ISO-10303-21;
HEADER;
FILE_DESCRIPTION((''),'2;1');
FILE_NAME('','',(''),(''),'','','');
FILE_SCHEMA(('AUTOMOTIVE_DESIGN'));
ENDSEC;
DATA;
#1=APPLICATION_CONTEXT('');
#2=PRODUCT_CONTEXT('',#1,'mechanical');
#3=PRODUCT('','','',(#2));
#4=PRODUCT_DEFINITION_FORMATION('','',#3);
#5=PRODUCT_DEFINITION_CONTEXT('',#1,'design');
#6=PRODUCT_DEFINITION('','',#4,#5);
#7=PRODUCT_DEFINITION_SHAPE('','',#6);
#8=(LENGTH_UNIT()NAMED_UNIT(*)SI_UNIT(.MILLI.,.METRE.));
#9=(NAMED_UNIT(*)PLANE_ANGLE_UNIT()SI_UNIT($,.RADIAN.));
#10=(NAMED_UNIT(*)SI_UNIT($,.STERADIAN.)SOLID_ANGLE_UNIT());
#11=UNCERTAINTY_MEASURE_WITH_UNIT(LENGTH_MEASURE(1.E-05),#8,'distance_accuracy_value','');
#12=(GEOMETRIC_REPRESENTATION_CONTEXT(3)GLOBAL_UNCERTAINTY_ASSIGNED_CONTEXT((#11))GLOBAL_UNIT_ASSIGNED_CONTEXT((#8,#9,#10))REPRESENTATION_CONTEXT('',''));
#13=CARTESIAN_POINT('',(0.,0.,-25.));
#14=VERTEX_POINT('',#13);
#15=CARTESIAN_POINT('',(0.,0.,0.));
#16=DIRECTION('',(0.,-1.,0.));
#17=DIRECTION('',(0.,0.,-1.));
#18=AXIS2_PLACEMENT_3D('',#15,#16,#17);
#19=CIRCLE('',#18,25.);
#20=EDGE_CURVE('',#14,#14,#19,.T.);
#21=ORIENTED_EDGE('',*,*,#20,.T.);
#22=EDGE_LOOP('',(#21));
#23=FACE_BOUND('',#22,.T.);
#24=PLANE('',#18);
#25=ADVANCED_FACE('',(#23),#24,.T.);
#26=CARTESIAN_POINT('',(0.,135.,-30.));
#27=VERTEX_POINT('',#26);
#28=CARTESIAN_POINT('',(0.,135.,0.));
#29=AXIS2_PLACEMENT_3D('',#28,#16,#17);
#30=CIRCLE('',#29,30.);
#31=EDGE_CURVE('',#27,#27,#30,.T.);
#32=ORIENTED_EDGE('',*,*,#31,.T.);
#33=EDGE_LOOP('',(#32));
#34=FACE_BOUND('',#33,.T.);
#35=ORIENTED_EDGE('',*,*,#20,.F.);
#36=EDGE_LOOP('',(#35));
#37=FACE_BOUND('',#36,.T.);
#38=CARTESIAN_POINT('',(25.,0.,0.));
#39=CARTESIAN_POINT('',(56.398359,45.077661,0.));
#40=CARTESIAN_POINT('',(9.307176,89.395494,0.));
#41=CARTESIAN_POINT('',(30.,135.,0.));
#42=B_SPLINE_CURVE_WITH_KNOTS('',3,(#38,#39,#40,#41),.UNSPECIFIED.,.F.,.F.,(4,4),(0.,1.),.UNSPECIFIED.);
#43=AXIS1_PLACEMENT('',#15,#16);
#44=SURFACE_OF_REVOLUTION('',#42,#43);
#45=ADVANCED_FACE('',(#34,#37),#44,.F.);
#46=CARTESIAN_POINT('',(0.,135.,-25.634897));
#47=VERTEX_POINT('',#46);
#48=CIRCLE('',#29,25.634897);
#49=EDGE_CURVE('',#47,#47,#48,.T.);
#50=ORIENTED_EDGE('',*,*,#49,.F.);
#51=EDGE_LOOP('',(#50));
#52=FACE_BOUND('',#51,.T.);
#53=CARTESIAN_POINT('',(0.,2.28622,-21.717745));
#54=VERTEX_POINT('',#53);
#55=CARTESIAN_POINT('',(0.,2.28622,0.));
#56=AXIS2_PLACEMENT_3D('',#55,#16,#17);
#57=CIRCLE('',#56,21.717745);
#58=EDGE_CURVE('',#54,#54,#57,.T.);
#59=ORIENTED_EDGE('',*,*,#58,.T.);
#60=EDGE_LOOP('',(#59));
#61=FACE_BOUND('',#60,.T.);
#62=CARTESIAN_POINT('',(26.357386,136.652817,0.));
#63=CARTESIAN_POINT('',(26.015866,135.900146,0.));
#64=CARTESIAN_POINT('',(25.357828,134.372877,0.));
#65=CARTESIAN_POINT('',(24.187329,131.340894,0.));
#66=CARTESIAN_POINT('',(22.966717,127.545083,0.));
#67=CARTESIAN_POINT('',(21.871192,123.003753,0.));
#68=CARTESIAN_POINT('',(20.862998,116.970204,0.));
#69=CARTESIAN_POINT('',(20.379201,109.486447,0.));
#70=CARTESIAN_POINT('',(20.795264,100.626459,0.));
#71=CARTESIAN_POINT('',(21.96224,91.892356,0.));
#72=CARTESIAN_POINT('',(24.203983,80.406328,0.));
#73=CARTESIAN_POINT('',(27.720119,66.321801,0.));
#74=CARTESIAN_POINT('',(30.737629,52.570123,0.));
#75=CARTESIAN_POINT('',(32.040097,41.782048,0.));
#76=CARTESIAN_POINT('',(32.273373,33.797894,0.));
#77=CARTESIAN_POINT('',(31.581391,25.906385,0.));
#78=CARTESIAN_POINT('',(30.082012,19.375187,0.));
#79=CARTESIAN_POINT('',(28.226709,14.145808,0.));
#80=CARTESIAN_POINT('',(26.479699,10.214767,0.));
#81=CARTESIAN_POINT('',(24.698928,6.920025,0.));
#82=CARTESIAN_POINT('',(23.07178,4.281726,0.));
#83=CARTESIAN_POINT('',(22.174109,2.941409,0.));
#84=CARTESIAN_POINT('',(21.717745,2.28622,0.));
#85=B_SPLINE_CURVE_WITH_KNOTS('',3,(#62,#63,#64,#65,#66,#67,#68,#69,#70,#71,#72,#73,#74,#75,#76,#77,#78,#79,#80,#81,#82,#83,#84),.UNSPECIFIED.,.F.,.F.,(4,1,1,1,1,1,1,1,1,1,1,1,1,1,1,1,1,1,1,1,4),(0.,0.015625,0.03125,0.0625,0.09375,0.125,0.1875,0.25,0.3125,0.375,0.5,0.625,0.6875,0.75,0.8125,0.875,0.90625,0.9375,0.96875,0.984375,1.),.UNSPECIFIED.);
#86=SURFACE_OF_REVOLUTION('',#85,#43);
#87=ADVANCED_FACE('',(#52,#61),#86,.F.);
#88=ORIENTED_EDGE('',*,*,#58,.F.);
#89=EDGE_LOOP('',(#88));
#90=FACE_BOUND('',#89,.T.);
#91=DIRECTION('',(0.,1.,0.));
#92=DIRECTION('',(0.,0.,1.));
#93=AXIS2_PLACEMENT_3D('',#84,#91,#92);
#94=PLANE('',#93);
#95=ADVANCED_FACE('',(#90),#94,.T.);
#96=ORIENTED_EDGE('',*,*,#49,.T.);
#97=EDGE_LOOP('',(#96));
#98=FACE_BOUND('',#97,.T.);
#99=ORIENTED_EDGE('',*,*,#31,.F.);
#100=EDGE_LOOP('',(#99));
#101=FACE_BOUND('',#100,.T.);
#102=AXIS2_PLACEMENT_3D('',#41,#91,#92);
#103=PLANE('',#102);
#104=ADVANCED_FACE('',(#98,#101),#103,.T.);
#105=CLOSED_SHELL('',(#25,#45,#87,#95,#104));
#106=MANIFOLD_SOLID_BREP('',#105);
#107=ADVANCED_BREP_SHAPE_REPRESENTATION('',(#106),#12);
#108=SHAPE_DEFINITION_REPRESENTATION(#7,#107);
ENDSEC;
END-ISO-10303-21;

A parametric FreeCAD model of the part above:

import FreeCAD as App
import Part
import Sketcher
from FreeCAD import Vector

doc = App.newDocument("Part")
body = doc.addObject("PartDesign::Body", "Body")

# Sketch on XY plane
sketch1 = body.newObject("Sketcher::SketchObject", "Sketch")
sketch1.AttachmentSupport = (doc.getObject("XY_Plane"), [""])
sketch1.MapMode = "FlatFace"
sketch1.addGeometry(Part.LineSegment(Vector(0, 0, 0), Vector(25, 0, 0)), False)
sketch1.addGeometry(Part.BSplineCurve([Vector(25, 0, 0), Vector(56.398359, 45.077661, 0), Vector(9.307176, 89.395494, 0), Vector(30, 135, 0)], [4, 4], [0, 1], False, 3, [1, 1, 1, 1], False), False)
sketch1.addGeometry(Part.LineSegment(Vector(30, 135, 0), Vector(25.634897, 135, 0)), False)
sketch1.addGeometry(Part.BSplineCurve([Vector(21.717745, 2.28622, 0), Vector(22.174109, 2.941408, 0), Vector(23.071781, 4.281725, 0), Vector(24.698929, 6.920023, 0), Vector(26.479701, 10.214764, 0), Vector(28.226713, 14.145803, 0), Vector(30.082017, 19.375181, 0), Vector(31.581399, 25.906377, 0), Vector(32.273384, 33.797885, 0), Vector(32.04011, 41.782038, 0), Vector(30.737647, 52.570112, 0), Vector(27.720142, 66.321789, 0), Vector(24.204012, 80.406315, 0), Vector(21.962274, 91.892342, 0), Vector(20.795302, 100.626445, 0), Vector(20.379242, 109.486432, 0), Vector(20.863042, 116.970187, 0), Vector(21.871238, 123.003736, 0), Vector(22.966764, 127.545064, 0), Vector(24.187378, 131.340874, 0), Vector(25.145248, 133.822074, 0), Vector(25.547374, 134.791855, 0), Vector(25.634897, 135, 0)], [4, 1, 1, 1, 1, 1, 1, 1, 1, 1, 1, 1, 1, 1, 1, 1, 1, 1, 1, 1, 4], [0, 0.015625, 0.03125, 0.0625, 0.09375, 0.125, 0.1875, 0.25, 0.3125, 0.375, 0.5, 0.625, 0.6875, 0.75, 0.8125, 0.875, 0.90625, 0.9375, 0.96875, 0.984375, 0.988646412], False, 3, [1, 1, 1, 1, 1, 1, 1, 1, 1, 1, 1, 1, 1, 1, 1, 1, 1, 1, 1, 1, 1, 1, 1], False), False)
sketch1.addGeometry(Part.LineSegment(Vector(21.717745, 2.28622, 0), Vector(0, 2.28622, 0)), False)
sketch1.addGeometry(Part.LineSegment(Vector(0, 2.28622, 0), Vector(0, 0, 0)), False)
sketch1.addConstraint(Sketcher.Constraint("Block", 1))
sketch1.addConstraint(Sketcher.Constraint("Block", 3))
sketch1.addConstraint(Sketcher.Constraint("Coincident", 0, 2, 1, 1))
sketch1.addConstraint(Sketcher.Constraint("Coincident", 1, 2, 2, 1))
sketch1.addConstraint(Sketcher.Constraint("Coincident", 2, 2, 3, 2))
sketch1.addConstraint(Sketcher.Constraint("Coincident", 3, 1, 4, 1))
sketch1.addConstraint(Sketcher.Constraint("Coincident", 4, 2, 5, 1))
sketch1.addConstraint(Sketcher.Constraint("Coincident", 5, 2, 0, 1))
sketch1.addConstraint(Sketcher.Constraint("Horizontal", 0))
sketch1.addConstraint(Sketcher.Constraint("Horizontal", 4))
sketch1.addConstraint(Sketcher.Constraint("Vertical", 5))
sketch1.addConstraint(Sketcher.Constraint("PointOnObject", 4, 2, -2))
revolution = body.newObject("PartDesign::Revolution", "Revolution")
revolution.Profile = sketch1
revolution.ReferenceAxis = (sketch1, ["V_Axis"])
revolution.Angle = 360

doc.recompute()
